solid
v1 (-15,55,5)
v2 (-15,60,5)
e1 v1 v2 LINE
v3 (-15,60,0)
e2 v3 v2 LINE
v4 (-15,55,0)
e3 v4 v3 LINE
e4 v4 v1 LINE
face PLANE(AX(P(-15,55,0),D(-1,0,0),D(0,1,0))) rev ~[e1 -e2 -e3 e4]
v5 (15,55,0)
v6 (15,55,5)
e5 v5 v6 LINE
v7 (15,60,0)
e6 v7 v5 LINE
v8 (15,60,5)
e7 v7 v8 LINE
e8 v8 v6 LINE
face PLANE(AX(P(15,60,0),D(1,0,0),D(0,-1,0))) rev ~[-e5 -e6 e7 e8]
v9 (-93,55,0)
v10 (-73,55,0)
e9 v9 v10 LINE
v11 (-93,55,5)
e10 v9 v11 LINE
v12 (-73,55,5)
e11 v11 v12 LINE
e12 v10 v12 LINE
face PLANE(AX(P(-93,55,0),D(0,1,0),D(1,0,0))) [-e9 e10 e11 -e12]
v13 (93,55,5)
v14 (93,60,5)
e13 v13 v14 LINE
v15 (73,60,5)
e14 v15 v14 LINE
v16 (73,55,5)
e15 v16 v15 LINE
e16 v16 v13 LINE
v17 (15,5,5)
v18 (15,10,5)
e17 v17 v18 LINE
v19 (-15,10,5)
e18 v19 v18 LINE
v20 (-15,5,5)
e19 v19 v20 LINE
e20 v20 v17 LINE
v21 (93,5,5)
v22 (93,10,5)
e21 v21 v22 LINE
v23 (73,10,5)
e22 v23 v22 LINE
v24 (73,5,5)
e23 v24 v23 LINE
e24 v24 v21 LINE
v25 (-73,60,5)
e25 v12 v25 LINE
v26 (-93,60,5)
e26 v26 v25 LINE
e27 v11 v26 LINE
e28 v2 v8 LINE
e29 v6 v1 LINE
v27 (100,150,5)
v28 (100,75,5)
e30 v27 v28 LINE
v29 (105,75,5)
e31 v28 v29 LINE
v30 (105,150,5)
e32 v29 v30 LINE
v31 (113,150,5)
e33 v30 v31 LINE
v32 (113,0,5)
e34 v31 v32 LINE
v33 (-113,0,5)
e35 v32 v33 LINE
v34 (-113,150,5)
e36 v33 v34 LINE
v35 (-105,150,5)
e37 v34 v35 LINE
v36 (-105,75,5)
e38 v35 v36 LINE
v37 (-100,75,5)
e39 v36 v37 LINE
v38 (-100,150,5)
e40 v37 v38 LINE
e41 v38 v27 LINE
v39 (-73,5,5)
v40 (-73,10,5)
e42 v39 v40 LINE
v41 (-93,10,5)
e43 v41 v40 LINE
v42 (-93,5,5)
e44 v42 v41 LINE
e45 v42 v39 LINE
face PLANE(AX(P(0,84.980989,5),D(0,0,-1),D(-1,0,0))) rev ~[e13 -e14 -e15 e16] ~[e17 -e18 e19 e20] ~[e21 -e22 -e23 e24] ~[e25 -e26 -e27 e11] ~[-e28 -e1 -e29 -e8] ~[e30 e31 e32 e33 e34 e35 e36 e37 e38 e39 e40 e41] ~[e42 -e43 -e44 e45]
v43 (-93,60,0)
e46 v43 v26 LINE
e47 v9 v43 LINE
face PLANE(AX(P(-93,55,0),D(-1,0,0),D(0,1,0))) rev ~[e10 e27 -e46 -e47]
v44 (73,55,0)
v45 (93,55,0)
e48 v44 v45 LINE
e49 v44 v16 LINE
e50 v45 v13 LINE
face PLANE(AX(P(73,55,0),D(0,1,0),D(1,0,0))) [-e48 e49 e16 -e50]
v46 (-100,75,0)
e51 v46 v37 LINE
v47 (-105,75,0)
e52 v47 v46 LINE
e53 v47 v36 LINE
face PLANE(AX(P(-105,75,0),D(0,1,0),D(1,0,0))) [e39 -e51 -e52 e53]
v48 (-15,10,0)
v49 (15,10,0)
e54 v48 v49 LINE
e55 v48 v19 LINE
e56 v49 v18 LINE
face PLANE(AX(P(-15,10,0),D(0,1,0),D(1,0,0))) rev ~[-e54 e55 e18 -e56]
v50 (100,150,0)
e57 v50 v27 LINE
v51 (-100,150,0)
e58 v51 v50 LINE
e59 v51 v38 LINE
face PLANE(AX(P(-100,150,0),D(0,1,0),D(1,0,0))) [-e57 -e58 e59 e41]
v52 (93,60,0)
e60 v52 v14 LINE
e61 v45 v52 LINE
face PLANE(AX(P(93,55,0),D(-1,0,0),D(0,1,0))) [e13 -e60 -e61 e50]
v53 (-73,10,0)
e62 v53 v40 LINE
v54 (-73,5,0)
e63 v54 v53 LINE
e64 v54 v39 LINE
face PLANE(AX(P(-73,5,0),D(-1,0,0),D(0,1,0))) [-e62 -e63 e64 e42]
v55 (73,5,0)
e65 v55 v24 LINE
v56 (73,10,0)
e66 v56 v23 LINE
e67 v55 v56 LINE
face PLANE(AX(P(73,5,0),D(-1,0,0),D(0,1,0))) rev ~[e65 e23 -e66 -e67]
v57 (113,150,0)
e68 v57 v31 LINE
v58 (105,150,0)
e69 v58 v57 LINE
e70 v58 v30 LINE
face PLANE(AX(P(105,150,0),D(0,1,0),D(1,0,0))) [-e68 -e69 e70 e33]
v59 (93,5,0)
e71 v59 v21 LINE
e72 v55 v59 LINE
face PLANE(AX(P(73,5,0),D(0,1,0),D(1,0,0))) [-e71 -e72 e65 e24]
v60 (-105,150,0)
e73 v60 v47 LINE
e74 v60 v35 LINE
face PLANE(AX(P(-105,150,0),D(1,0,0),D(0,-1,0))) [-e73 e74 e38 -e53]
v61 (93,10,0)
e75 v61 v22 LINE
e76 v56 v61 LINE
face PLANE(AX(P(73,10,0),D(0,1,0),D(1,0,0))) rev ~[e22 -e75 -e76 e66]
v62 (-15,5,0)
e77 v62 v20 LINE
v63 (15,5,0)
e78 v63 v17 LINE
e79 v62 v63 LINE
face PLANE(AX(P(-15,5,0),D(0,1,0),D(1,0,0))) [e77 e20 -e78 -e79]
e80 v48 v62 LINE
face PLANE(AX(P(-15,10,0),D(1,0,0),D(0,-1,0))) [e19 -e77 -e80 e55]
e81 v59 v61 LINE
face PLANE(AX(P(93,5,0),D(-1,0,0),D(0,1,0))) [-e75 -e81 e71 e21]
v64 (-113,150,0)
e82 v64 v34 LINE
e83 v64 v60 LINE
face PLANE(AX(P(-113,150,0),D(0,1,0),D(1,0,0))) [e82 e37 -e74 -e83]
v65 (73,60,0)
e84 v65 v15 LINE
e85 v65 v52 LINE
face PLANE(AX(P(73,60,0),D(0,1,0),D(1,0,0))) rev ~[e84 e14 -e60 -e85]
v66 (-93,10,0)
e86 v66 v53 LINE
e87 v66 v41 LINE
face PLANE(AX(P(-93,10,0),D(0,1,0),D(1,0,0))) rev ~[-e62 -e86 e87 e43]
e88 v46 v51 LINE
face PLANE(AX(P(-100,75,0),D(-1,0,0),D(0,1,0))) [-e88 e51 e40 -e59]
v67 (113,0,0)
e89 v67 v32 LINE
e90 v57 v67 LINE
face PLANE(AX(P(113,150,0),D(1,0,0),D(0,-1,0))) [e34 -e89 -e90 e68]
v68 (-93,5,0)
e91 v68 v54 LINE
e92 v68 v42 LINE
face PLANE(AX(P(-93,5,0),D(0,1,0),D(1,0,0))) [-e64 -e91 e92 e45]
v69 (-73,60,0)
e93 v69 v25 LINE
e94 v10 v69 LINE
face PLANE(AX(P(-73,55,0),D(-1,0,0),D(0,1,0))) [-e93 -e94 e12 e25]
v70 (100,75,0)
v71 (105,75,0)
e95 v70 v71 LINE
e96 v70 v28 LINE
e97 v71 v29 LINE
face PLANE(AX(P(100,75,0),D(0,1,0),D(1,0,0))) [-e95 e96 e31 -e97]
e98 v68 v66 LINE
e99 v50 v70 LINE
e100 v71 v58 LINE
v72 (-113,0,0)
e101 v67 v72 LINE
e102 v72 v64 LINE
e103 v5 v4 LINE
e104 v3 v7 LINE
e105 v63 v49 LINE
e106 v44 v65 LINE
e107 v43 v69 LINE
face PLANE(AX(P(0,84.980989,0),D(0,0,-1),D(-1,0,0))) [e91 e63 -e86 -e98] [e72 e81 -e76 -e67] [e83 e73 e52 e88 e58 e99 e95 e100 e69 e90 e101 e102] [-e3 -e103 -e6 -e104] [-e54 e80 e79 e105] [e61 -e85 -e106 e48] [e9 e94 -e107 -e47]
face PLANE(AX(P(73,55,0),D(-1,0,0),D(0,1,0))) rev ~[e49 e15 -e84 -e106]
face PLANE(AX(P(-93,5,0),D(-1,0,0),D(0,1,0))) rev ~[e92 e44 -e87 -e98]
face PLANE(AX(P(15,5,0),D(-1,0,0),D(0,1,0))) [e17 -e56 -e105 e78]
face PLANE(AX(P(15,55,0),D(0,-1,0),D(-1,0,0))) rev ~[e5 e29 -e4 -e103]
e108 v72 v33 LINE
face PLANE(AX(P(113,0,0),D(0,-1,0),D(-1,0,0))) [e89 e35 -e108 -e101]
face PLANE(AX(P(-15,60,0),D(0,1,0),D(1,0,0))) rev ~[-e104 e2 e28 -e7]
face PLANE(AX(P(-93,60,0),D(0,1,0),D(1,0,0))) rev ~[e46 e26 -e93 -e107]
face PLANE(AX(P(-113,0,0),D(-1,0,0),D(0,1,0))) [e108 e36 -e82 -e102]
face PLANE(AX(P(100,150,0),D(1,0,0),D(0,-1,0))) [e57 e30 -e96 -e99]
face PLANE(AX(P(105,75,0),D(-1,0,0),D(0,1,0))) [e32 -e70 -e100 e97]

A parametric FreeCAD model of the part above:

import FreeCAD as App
import Part
import Sketcher
from FreeCAD import Vector

doc = App.newDocument("Part")
params = doc.addObject("Spreadsheet::Sheet", "Params")
for row, (alias, value) in enumerate([
    ("sketch1_width", "200 mm"),
    ("sketch1_width2", "5 mm"),
    ("sketch1_width3", "8 mm"),
    ("sketch1_width4", "20 mm"),
    ("sketch1_width5", "30 mm"),
    ("pad1_length", "5 mm"),
], start=1):
    params.set(f"A{row}", alias)
    params.set(f"B{row}", "=" + value)
    params.setAlias(f"B{row}", alias)

body = doc.addObject("PartDesign::Body", "Body")

# Sketch on XY plane
sketch1 = doc.addObject("Sketcher::SketchObject", "Sketch")
body.addObject(sketch1)
sketch1.AttachmentSupport = (doc.XY_Plane, [""])
sketch1.MapMode = "FlatFace"
sketch1.addGeometry([
    Part.LineSegment(Vector(100, 150, 0), Vector(-100, 150, 0)),  # 0
    Part.LineSegment(Vector(-100, 150, 0), Vector(-100, 75, 0)),  # 1
    Part.LineSegment(Vector(-100, 75, 0), Vector(-105, 75, 0)),  # 2
    Part.LineSegment(Vector(-105, 75, 0), Vector(-105, 150, 0)),  # 3
    Part.LineSegment(Vector(-105, 150, 0), Vector(-113, 150, 0)),  # 4
    Part.LineSegment(Vector(-113, 150, 0), Vector(-113, 0, 0)),  # 5
    Part.LineSegment(Vector(-113, 0, 0), Vector(113, 0, 0)),  # 6
    Part.LineSegment(Vector(113, 0, 0), Vector(113, 150, 0)),  # 7
    Part.LineSegment(Vector(113, 150, 0), Vector(105, 150, 0)),  # 8
    Part.LineSegment(Vector(105, 150, 0), Vector(105, 75, 0)),  # 9
    Part.LineSegment(Vector(105, 75, 0), Vector(100, 75, 0)),  # 10
    Part.LineSegment(Vector(100, 75, 0), Vector(100, 150, 0)),  # 11
    Part.LineSegment(Vector(73, 5, 0), Vector(73, 10, 0)),  # 12
    Part.LineSegment(Vector(73, 10, 0), Vector(93, 10, 0)),  # 13
    Part.LineSegment(Vector(93, 10, 0), Vector(93, 5, 0)),  # 14
    Part.LineSegment(Vector(93, 5, 0), Vector(73, 5, 0)),  # 15
    Part.LineSegment(Vector(-15, 5, 0), Vector(-15, 10, 0)),  # 16
    Part.LineSegment(Vector(-15, 10, 0), Vector(15, 10, 0)),  # 17
    Part.LineSegment(Vector(15, 10, 0), Vector(15, 5, 0)),  # 18
    Part.LineSegment(Vector(15, 5, 0), Vector(-15, 5, 0)),  # 19
    Part.LineSegment(Vector(-93, 5, 0), Vector(-93, 10, 0)),  # 20
    Part.LineSegment(Vector(-93, 10, 0), Vector(-73, 10, 0)),  # 21
    Part.LineSegment(Vector(-73, 10, 0), Vector(-73, 5, 0)),  # 22
    Part.LineSegment(Vector(-73, 5, 0), Vector(-93, 5, 0)),  # 23
    Part.LineSegment(Vector(73, 55, 0), Vector(73, 60, 0)),  # 24
    Part.LineSegment(Vector(73, 60, 0), Vector(93, 60, 0)),  # 25
    Part.LineSegment(Vector(93, 60, 0), Vector(93, 55, 0)),  # 26
    Part.LineSegment(Vector(93, 55, 0), Vector(73, 55, 0)),  # 27
    Part.LineSegment(Vector(-15, 60, 0), Vector(15, 60, 0)),  # 28
    Part.LineSegment(Vector(15, 60, 0), Vector(15, 55, 0)),  # 29
    Part.LineSegment(Vector(15, 55, 0), Vector(-15, 55, 0)),  # 30
    Part.LineSegment(Vector(-15, 55, 0), Vector(-15, 60, 0)),  # 31
    Part.LineSegment(Vector(-93, 55, 0), Vector(-93, 60, 0)),  # 32
    Part.LineSegment(Vector(-93, 60, 0), Vector(-73, 60, 0)),  # 33
    Part.LineSegment(Vector(-73, 60, 0), Vector(-73, 55, 0)),  # 34
    Part.LineSegment(Vector(-73, 55, 0), Vector(-93, 55, 0)),  # 35
], False)
sketch1.addConstraint([
    Sketcher.Constraint("Coincident", 0, 2, 1, 1),
    Sketcher.Constraint("Coincident", 1, 2, 2, 1),
    Sketcher.Constraint("Coincident", 2, 2, 3, 1),
    Sketcher.Constraint("Coincident", 3, 2, 4, 1),
    Sketcher.Constraint("Coincident", 4, 2, 5, 1),
    Sketcher.Constraint("Coincident", 5, 2, 6, 1),
    Sketcher.Constraint("Coincident", 6, 2, 7, 1),
    Sketcher.Constraint("Coincident", 7, 2, 8, 1),
    Sketcher.Constraint("Coincident", 8, 2, 9, 1),
    Sketcher.Constraint("Coincident", 9, 2, 10, 1),
    Sketcher.Constraint("Coincident", 10, 2, 11, 1),
    Sketcher.Constraint("Coincident", 11, 2, 0, 1),
    Sketcher.Constraint("Coincident", 12, 2, 13, 1),
    Sketcher.Constraint("Coincident", 13, 2, 14, 1),
    Sketcher.Constraint("Coincident", 14, 2, 15, 1),
    Sketcher.Constraint("Coincident", 15, 2, 12, 1),
    Sketcher.Constraint("Coincident", 16, 2, 17, 1),
    Sketcher.Constraint("Coincident", 17, 2, 18, 1),
    Sketcher.Constraint("Coincident", 18, 2, 19, 1),
    Sketcher.Constraint("Coincident", 19, 2, 16, 1),
    Sketcher.Constraint("Coincident", 20, 2, 21, 1),
    Sketcher.Constraint("Coincident", 21, 2, 22, 1),
    Sketcher.Constraint("Coincident", 22, 2, 23, 1),
    Sketcher.Constraint("Coincident", 23, 2, 20, 1),
    Sketcher.Constraint("Coincident", 24, 2, 25, 1),
    Sketcher.Constraint("Coincident", 25, 2, 26, 1),
    Sketcher.Constraint("Coincident", 26, 2, 27, 1),
    Sketcher.Constraint("Coincident", 27, 2, 24, 1),
    Sketcher.Constraint("Coincident", 28, 2, 29, 1),
    Sketcher.Constraint("Coincident", 29, 2, 30, 1),
    Sketcher.Constraint("Coincident", 30, 2, 31, 1),
    Sketcher.Constraint("Coincident", 31, 2, 28, 1),
    Sketcher.Constraint("Coincident", 32, 2, 33, 1),
    Sketcher.Constraint("Coincident", 33, 2, 34, 1),
    Sketcher.Constraint("Coincident", 34, 2, 35, 1),
    Sketcher.Constraint("Coincident", 35, 2, 32, 1),
    Sketcher.Constraint("Horizontal", 0),
    Sketcher.Constraint("Vertical", 1),
    Sketcher.Constraint("Horizontal", 2),
    Sketcher.Constraint("Vertical", 3),
    Sketcher.Constraint("Horizontal", 4),
    Sketcher.Constraint("Vertical", 5),
    Sketcher.Constraint("Horizontal", 6),
    Sketcher.Constraint("Vertical", 7),
    Sketcher.Constraint("Horizontal", 8),
    Sketcher.Constraint("Vertical", 9),
    Sketcher.Constraint("Horizontal", 10),
    Sketcher.Constraint("Vertical", 11),
    Sketcher.Constraint("Vertical", 12),
    Sketcher.Constraint("Horizontal", 13),
    Sketcher.Constraint("Vertical", 14),
    Sketcher.Constraint("Horizontal", 15),
    Sketcher.Constraint("Vertical", 16),
    Sketcher.Constraint("Horizontal", 17),
    Sketcher.Constraint("Vertical", 18),
    Sketcher.Constraint("Horizontal", 19),
    Sketcher.Constraint("Vertical", 20),
    Sketcher.Constraint("Horizontal", 21),
    Sketcher.Constraint("Vertical", 22),
    Sketcher.Constraint("Horizontal", 23),
    Sketcher.Constraint("Vertical", 24),
    Sketcher.Constraint("Horizontal", 25),
    Sketcher.Constraint("Vertical", 26),
    Sketcher.Constraint("Horizontal", 27),
    Sketcher.Constraint("Horizontal", 28),
    Sketcher.Constraint("Vertical", 29),
    Sketcher.Constraint("Horizontal", 30),
    Sketcher.Constraint("Vertical", 31),
    Sketcher.Constraint("Vertical", 32),
    Sketcher.Constraint("Horizontal", 33),
    Sketcher.Constraint("Vertical", 34),
    Sketcher.Constraint("Horizontal", 35),
    Sketcher.Constraint("Symmetric", 5, 2, 6, 2, -1, 1),
    Sketcher.Constraint("Symmetric", 3, 2, 8, 2, -2),
    Sketcher.Constraint("Symmetric", 1, 2, 10, 2, -2),
    Sketcher.Constraint("Symmetric", 13, 2, 20, 2, -2),
    Sketcher.Constraint("Symmetric", 15, 2, 22, 2, -2),
    Sketcher.Constraint("Symmetric", 25, 2, 32, 2, -2),
    Sketcher.Constraint("Symmetric", 27, 2, 34, 2, -2),
    Sketcher.Constraint("Horizontal", 0, 2, 3, 2),
    Sketcher.Constraint("Horizontal", 13, 2, 16, 2),
    Sketcher.Constraint("Horizontal", 15, 2, 18, 2),
    Sketcher.Constraint("Horizontal", 25, 2, 28, 2),
    Sketcher.Constraint("Horizontal", 27, 2, 29, 2),
    Sketcher.Constraint("Vertical", 15, 2, 24, 2),
    Sketcher.Constraint("Vertical", 14, 2, 25, 2),
    Sketcher.Constraint("Vertical", 18, 2, 28, 2),
    Sketcher.Constraint("Vertical", 19, 2, 30, 2),
    Sketcher.Constraint("Equal", 10, 12),
    Sketcher.Constraint("Equal", 22, 24),
    Sketcher.Constraint("DistanceX", 0, 2, 0, 1, 200.0),
    Sketcher.Constraint("DistanceX", 2, 2, 2, 1, 5.0),
    Sketcher.Constraint("DistanceX", 4, 2, 4, 1, 8.0),
    Sketcher.Constraint("DistanceX", 13, 1, 13, 2, 20.0),
    Sketcher.Constraint("DistanceX", 17, 1, 17, 2, 30.0),
    Sketcher.Constraint("DistanceY", 1, 2, 1, 1, 75.0),
    Sketcher.Constraint("DistanceY", 5, 2, 5, 1, 150.0),
    Sketcher.Constraint("DistanceX", -1, 1, 12, 2, 73.0),
    Sketcher.Constraint("DistanceY", -1, 1, 12, 2, 10.0),
    Sketcher.Constraint("DistanceX", 16, 2, -1, 1, 15.0),
    Sketcher.Constraint("DistanceY", -1, 1, 24, 2, 60.0),
])
sketch1.setExpression("Constraints[90]", "Params.sketch1_width")
sketch1.setExpression("Constraints[91]", "Params.sketch1_width2")
sketch1.setExpression("Constraints[92]", "Params.sketch1_width3")
sketch1.setExpression("Constraints[93]", "Params.sketch1_width4")
sketch1.setExpression("Constraints[94]", "Params.sketch1_width5")
pad1 = doc.addObject("PartDesign::Pad", "Pad")
body.addObject(pad1)
pad1.Profile = sketch1
pad1.setExpression("Length", "Params.pad1_length")

doc.recompute()
